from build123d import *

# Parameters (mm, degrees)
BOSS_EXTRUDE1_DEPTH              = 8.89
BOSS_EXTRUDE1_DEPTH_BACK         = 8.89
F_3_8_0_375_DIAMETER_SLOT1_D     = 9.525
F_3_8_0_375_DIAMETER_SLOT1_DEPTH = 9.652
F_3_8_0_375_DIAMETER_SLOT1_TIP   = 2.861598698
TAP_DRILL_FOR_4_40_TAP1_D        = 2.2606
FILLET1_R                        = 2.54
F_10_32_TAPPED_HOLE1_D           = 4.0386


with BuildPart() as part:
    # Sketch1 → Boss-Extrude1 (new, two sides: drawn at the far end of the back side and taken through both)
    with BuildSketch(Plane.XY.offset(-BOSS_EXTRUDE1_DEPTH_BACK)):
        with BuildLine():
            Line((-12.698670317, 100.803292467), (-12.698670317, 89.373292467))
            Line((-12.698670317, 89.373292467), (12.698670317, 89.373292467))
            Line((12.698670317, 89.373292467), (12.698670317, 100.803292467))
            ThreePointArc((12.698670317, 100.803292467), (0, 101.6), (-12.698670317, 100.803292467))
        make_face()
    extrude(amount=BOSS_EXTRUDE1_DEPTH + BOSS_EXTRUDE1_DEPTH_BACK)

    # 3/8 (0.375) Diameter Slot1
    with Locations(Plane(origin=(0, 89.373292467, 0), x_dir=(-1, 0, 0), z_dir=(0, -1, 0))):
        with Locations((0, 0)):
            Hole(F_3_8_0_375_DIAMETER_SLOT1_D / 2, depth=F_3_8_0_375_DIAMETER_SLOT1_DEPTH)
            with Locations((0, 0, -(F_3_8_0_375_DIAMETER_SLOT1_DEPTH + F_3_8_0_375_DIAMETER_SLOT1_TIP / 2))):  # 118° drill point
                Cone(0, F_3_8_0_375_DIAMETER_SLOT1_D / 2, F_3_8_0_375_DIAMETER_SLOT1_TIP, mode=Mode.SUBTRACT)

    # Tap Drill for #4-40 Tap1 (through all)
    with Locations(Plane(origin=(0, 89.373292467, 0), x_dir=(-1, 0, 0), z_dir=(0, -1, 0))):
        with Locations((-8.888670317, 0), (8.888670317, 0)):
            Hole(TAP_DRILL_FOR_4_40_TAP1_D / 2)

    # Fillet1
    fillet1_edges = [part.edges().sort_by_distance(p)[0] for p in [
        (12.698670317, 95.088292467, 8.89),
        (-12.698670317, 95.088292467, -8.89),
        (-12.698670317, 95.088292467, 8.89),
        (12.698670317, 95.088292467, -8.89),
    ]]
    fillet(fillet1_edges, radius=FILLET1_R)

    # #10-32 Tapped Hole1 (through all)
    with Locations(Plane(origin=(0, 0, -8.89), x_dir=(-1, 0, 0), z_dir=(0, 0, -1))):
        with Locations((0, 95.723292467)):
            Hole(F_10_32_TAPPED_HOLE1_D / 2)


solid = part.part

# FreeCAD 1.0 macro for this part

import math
import FreeCAD as App
import Part
import Sketcher
from FreeCAD import Vector
Q = App.Units.Quantity


def edges_at(feature, points):
    """Names of the edges that pass closest to the given points."""
    edges = feature.Shape.Edges
    near = lambda p: min(range(len(edges)), key=lambda i: edges[i].distToShape(Part.Vertex(*p))[0])
    return sorted({f"Edge{near(p) + 1}" for p in points})

doc = App.newDocument("Part")
body = doc.addObject("PartDesign::Body", "Body")

# Sketch on XY plane
sketch1 = body.newObject("Sketcher::SketchObject", "Sketch")
sketch1.AttachmentSupport = (doc.getObject("XY_Plane"), [""])
sketch1.MapMode = "FlatFace"
sketch1.addGeometry([
    Part.LineSegment(Vector(-12.69867, 100.803292, 0), Vector(-12.69867, 89.373292, 0)),
    Part.LineSegment(Vector(-12.69867, 89.373292, 0), Vector(12.69867, 89.373292, 0)),
    Part.LineSegment(Vector(12.69867, 89.373292, 0), Vector(12.69867, 100.803292, 0)),
    Part.ArcOfCircle(Part.Circle(Vector(0, 0, 0), Vector(0, 0, 1), 101.6), math.radians(82.82), math.radians(97.18)),
], False)
sketch1.addConstraint([
    Sketcher.Constraint("Coincident", 0, 2, 1, 1),
    Sketcher.Constraint("Coincident", 1, 2, 2, 1),
    Sketcher.Constraint("Coincident", 2, 2, 3, 1),
    Sketcher.Constraint("Coincident", 3, 2, 0, 1),
    Sketcher.Constraint("Vertical", 0),
    Sketcher.Constraint("Horizontal", 1),
    Sketcher.Constraint("Vertical", 2),
    Sketcher.Constraint("Coincident", 3, 3, -1, 1),
    Sketcher.Constraint("Horizontal", 2, 2, 3, 2),
    Sketcher.Constraint("Radius", 3, Q("4 in")),
    Sketcher.Constraint("DistanceY", 0, 2, 0, 1, Q("0.45 in")),
    Sketcher.Constraint("DistanceX", 1, 1, 1, 2, 25.397341),
])
pad1 = body.newObject("PartDesign::Pad", "Pad")
pad1.Profile = sketch1
pad1.Type = "TwoLengths"
pad1.Length = Q("0.35 in")
pad1.Length2 = Q("0.35 in")

# Sketch on XZ plane
sketch2 = body.newObject("Sketcher::SketchObject", "Sketch001")
sketch2.AttachmentSupport = (doc.getObject("XZ_Plane"), [""])
sketch2.MapMode = "FlatFace"
sketch2.AttachmentOffset = App.Placement(Vector(0, 0, -89.373292), App.Rotation())
sketch2.addGeometry(Part.Circle(Vector(0, 0, 0), Vector(0, 0, 1), 4.7625), False)
sketch2.addConstraint([
    Sketcher.Constraint("Coincident", 0, 3, -1, 1),
    Sketcher.Constraint("Diameter", 0, Q("0.375 in")),
])
doc.recompute()
hole = body.newObject("PartDesign::Hole", "Hole")
hole.Profile = sketch2
hole.ThreadType = "None"
hole.Diameter = Q("0.375 in")
hole.DepthType = "Dimension"
hole.Depth = Q("0.38 in")
hole.DrillPoint = "Angled"
hole.DrillPointAngle = 118

# Sketch on XZ plane
sketch3 = body.newObject("Sketcher::SketchObject", "Sketch002")
sketch3.AttachmentSupport = (doc.getObject("XZ_Plane"), [""])
sketch3.MapMode = "FlatFace"
sketch3.AttachmentOffset = App.Placement(Vector(0, 0, -89.373292), App.Rotation())
sketch3.addGeometry([
    Part.Circle(Vector(8.88867, 0, 0), Vector(0, 0, 1), 1.1303),
    Part.Circle(Vector(-8.88867, 0, 0), Vector(0, 0, 1), 1.1303),
], False)
sketch3.addConstraint([
    Sketcher.Constraint("Equal", 0, 1),
    Sketcher.Constraint("Symmetric", 0, 3, 1, 3, -1, 1),
    Sketcher.Constraint("PointOnObject", 0, 3, -1),
    Sketcher.Constraint("Diameter", 0, Q("0.089 in")),
    Sketcher.Constraint("DistanceX", -1, 1, 0, 3, 8.88867),
])
doc.recompute()
hole2 = body.newObject("PartDesign::Hole", "Hole001")
hole2.Profile = sketch3
hole2.ThreadType = "None"
hole2.Diameter = Q("0.089 in")
hole2.DepthType = "ThroughAll"
doc.recompute()

fillet = body.newObject("PartDesign::Fillet", "Fillet")
fillet.Base = (hole2, edges_at(hole2, [
    (12.699, 95.088, 8.89),
    (-12.699, 95.088, -8.89),
    (-12.699, 95.088, 8.89),
    (12.699, 95.088, -8.89),
]))
fillet.Radius = Q("0.1 in")

# Sketch on XY plane
sketch4 = body.newObject("Sketcher::SketchObject", "Sketch003")
sketch4.AttachmentSupport = (doc.getObject("XY_Plane"), [""])
sketch4.MapMode = "FlatFace"
sketch4.AttachmentOffset = App.Placement(Vector(0, 0, -0.35 * 25.4), App.Rotation())
sketch4.addGeometry(Part.Circle(Vector(0, 95.723292, 0), Vector(0, 0, 1), 2.0193), False)
sketch4.addConstraint([
    Sketcher.Constraint("PointOnObject", 0, 3, -2),
    Sketcher.Constraint("Diameter", 0, Q("0.159 in")),
    Sketcher.Constraint("DistanceY", -1, 1, 0, 3, 95.723292),
])
doc.recompute()
hole3 = body.newObject("PartDesign::Hole", "Hole002")
hole3.Profile = sketch4
hole3.ThreadType = "None"
hole3.Diameter = Q("0.159 in")
hole3.DepthType = "ThroughAll"
hole3.Reversed = True

doc.recompute()
